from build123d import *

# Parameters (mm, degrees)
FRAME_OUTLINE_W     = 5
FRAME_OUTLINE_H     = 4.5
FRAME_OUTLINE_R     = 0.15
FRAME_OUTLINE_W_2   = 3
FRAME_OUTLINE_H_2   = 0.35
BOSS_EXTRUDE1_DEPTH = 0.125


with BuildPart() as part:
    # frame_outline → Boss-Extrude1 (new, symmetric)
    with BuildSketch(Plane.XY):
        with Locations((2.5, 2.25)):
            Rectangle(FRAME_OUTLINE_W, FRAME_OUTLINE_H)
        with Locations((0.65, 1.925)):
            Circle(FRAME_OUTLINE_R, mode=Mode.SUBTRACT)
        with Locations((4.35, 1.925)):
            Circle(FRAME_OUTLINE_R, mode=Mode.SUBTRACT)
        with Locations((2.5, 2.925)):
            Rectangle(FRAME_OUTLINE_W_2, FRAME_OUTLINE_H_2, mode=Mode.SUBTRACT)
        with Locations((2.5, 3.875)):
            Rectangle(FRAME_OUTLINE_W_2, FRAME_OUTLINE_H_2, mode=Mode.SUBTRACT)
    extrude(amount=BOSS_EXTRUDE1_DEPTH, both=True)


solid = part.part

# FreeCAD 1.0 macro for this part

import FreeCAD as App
import Part
import Sketcher

doc = App.newDocument("Part")
body = doc.addObject("PartDesign::Body", "Body")

sketch1 = body.newObject("Sketcher::SketchObject", "Sketch")
sketch1.AttachmentSupport = (doc.getObject("XY_Plane"), [""])
sketch1.MapMode = "FlatFace"
sketch1.addGeometry([
    Part.LineSegment(App.Vector(0, 4.5, 0), App.Vector(0, 0, 0)),
    Part.LineSegment(App.Vector(0, 0, 0), App.Vector(5, 0, 0)),
    Part.LineSegment(App.Vector(5, 0, 0), App.Vector(5, 4.5, 0)),
    Part.LineSegment(App.Vector(5, 4.5, 0), App.Vector(0, 4.5, 0)),
    Part.Circle(App.Vector(0.65, 1.93, 0), App.Vector(0, 0, 1), 0.15),
    Part.Circle(App.Vector(4.35, 1.93, 0), App.Vector(0, 0, 1), 0.15),
    Part.LineSegment(App.Vector(4, 2.75, 0), App.Vector(1, 2.75, 0)),
    Part.LineSegment(App.Vector(1, 2.75, 0), App.Vector(1, 3.1, 0)),
    Part.LineSegment(App.Vector(1, 3.1, 0), App.Vector(4, 3.1, 0)),
    Part.LineSegment(App.Vector(4, 3.1, 0), App.Vector(4, 2.75, 0)),
    Part.LineSegment(App.Vector(4, 3.7, 0), App.Vector(1, 3.7, 0)),
    Part.LineSegment(App.Vector(1, 3.7, 0), App.Vector(1, 4.05, 0)),
    Part.LineSegment(App.Vector(1, 4.05, 0), App.Vector(4, 4.05, 0)),
    Part.LineSegment(App.Vector(4, 4.05, 0), App.Vector(4, 3.7, 0)),
], False)
sketch1.addConstraint([
    Sketcher.Constraint("Coincident", 0, 2, 1, 1),
    Sketcher.Constraint("Coincident", 1, 2, 2, 1),
    Sketcher.Constraint("Coincident", 2, 2, 3, 1),
    Sketcher.Constraint("Coincident", 3, 2, 0, 1),
    Sketcher.Constraint("Coincident", 6, 2, 7, 1),
    Sketcher.Constraint("Coincident", 7, 2, 8, 1),
    Sketcher.Constraint("Coincident", 8, 2, 9, 1),
    Sketcher.Constraint("Coincident", 9, 2, 6, 1),
    Sketcher.Constraint("Coincident", 10, 2, 11, 1),
    Sketcher.Constraint("Coincident", 11, 2, 12, 1),
    Sketcher.Constraint("Coincident", 12, 2, 13, 1),
    Sketcher.Constraint("Coincident", 13, 2, 10, 1),
    Sketcher.Constraint("Vertical", 0),
    Sketcher.Constraint("Horizontal", 1),
    Sketcher.Constraint("Vertical", 2),
    Sketcher.Constraint("Horizontal", 3),
    Sketcher.Constraint("Horizontal", 6),
    Sketcher.Constraint("Vertical", 7),
    Sketcher.Constraint("Horizontal", 8),
    Sketcher.Constraint("Vertical", 9),
    Sketcher.Constraint("Horizontal", 10),
    Sketcher.Constraint("Vertical", 11),
    Sketcher.Constraint("Horizontal", 12),
    Sketcher.Constraint("Vertical", 13),
    Sketcher.Constraint("Coincident", 0, 2, -1, 1),
    Sketcher.Constraint("Equal", 4, 5),
    Sketcher.Constraint("Horizontal", 4, 3, 5, 3),
    Sketcher.Constraint("Vertical", 7, 2, 10, 2),
    Sketcher.Constraint("Vertical", 9, 2, 12, 2),
    Sketcher.Constraint("Equal", 9, 11),
    Sketcher.Constraint("Diameter", 4, 0.3),
    Sketcher.Constraint("DistanceX", 1, 1, 1, 2, 5.0),
    Sketcher.Constraint("DistanceX", 6, 2, 6, 1, 3.0),
    Sketcher.Constraint("DistanceY", 0, 2, 0, 1, 4.5),
    Sketcher.Constraint("DistanceX", -1, 1, 6, 2, 1.0),
    Sketcher.Constraint("DistanceY", 7, 1, 7, 2, 0.35),
    Sketcher.Constraint("DistanceY", -1, 1, 7, 2, 3.1),
    Sketcher.Constraint("DistanceY", -1, 1, 10, 2, 3.7),
    Sketcher.Constraint("DistanceX", 4, 3, 5, 3, 3.7),
    Sketcher.Constraint("DistanceX", -1, 1, 4, 3, 0.65),
    Sketcher.Constraint("DistanceY", -1, 1, 4, 3, 1.925),
])
pad1 = body.newObject("PartDesign::Pad", "Pad")
pad1.Profile = sketch1
pad1.Length = 0.25
pad1.Midplane = True

doc.recompute()
